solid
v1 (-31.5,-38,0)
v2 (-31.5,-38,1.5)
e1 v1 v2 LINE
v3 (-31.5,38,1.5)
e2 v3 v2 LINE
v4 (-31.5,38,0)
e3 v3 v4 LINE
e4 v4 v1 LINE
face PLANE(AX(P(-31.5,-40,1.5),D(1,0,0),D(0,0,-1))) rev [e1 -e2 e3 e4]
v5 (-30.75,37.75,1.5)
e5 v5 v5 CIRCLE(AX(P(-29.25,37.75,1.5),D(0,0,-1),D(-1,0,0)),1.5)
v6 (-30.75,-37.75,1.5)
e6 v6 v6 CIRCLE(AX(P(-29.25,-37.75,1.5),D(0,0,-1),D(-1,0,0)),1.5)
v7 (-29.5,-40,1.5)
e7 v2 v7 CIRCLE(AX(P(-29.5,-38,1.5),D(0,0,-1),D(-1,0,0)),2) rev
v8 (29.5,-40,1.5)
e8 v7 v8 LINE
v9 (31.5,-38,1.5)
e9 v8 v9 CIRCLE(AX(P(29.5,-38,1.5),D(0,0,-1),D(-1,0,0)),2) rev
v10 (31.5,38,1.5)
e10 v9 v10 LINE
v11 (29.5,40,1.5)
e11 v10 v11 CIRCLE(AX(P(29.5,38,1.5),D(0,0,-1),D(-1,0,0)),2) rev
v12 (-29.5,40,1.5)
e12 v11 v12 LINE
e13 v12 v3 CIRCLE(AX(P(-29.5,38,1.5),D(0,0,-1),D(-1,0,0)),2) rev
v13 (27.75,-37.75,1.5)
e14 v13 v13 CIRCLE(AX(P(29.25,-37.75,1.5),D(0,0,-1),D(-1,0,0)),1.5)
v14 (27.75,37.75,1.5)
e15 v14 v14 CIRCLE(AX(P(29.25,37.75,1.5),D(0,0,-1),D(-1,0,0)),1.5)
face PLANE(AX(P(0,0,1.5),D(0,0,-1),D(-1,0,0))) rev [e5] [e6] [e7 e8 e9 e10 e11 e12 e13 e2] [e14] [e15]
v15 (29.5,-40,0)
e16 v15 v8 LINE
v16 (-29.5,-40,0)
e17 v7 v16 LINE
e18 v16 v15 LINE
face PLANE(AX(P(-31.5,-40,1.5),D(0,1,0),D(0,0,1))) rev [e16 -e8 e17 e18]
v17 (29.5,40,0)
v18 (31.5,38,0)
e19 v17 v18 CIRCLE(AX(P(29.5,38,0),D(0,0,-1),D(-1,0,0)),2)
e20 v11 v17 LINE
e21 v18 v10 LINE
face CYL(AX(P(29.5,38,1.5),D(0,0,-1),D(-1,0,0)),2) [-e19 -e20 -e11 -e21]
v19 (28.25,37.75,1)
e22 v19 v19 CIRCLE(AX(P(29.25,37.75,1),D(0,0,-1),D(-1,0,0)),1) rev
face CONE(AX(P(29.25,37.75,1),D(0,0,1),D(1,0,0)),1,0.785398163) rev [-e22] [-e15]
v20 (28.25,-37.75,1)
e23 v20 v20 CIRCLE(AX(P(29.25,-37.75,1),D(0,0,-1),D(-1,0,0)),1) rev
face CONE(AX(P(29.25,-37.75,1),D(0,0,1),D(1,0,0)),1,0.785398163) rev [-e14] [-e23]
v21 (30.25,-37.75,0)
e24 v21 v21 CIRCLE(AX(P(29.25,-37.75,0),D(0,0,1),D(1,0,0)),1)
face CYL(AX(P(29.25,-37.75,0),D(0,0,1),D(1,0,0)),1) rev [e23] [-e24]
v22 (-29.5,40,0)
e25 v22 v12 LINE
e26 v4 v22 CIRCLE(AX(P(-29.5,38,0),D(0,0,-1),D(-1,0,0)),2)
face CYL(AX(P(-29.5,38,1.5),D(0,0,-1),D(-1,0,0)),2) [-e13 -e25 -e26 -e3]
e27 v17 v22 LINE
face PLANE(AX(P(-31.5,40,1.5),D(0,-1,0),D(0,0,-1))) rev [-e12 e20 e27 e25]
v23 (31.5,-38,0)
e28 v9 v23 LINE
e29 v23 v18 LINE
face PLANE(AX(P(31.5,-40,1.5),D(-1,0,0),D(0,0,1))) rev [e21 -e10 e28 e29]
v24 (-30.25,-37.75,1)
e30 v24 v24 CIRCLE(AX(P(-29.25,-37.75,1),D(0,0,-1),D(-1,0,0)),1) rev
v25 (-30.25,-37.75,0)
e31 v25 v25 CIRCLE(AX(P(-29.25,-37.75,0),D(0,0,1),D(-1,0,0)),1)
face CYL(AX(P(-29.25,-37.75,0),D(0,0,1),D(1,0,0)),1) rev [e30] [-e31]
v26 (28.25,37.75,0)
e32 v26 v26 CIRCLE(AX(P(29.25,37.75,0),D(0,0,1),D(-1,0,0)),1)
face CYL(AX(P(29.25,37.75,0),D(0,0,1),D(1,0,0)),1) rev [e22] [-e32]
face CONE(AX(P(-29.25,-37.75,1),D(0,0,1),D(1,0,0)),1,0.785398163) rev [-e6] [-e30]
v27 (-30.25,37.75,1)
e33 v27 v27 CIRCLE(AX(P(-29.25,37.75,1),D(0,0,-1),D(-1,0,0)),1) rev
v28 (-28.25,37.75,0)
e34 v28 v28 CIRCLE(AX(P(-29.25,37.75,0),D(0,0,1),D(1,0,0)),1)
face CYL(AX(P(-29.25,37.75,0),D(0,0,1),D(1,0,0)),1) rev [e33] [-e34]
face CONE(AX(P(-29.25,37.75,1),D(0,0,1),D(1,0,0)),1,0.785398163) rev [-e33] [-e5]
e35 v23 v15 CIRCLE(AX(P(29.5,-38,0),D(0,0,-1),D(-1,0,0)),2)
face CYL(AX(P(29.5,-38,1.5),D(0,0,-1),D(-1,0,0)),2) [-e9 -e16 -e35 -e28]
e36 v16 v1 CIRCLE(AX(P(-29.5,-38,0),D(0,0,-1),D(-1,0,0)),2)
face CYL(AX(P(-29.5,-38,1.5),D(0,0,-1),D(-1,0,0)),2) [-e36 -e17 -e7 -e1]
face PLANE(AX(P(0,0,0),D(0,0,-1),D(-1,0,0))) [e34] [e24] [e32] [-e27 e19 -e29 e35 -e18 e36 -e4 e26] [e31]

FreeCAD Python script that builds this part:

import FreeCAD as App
import Part
import Sketcher
from FreeCAD import Vector


def edges_at(feature, points):
    """Names of the edges that pass closest to the given points."""
    edges = feature.Shape.Edges
    near = lambda p: min(range(len(edges)), key=lambda i: edges[i].distToShape(Part.Vertex(*p))[0])
    return sorted({f"Edge{near(p) + 1}" for p in points})

doc = App.newDocument("Part")
body = doc.addObject("PartDesign::Body", "Body")

# Sketch on XY plane
sketch1 = body.newObject("Sketcher::SketchObject", "Sketch")
sketch1.AttachmentSupport = (doc.getObject("XY_Plane"), [""])
sketch1.MapMode = "FlatFace"
sketch1.addGeometry([
    Part.LineSegment(Vector(-32, 40, 0), Vector(-32, -40, 0)),
    Part.LineSegment(Vector(-32, -40, 0), Vector(32, -40, 0)),
    Part.LineSegment(Vector(32, -40, 0), Vector(32, 40, 0)),
    Part.LineSegment(Vector(32, 40, 0), Vector(-32, 40, 0)),
], False)
sketch1.addConstraint([
    Sketcher.Constraint("Coincident", 0, 2, 1, 1),
    Sketcher.Constraint("Coincident", 1, 2, 2, 1),
    Sketcher.Constraint("Coincident", 2, 2, 3, 1),
    Sketcher.Constraint("Coincident", 3, 2, 0, 1),
    Sketcher.Constraint("Vertical", 0),
    Sketcher.Constraint("Horizontal", 1),
    Sketcher.Constraint("Vertical", 2),
    Sketcher.Constraint("Horizontal", 3),
    Sketcher.Constraint("Symmetric", 0, 2, 2, 2, -1, 1),
    Sketcher.Constraint("DistanceX", 1, 1, 1, 2, 63.0),
    Sketcher.Constraint("DistanceY", 0, 2, 0, 1, 80.0),
])
pad1 = body.newObject("PartDesign::Pad", "Pad")
pad1.Profile = sketch1
pad1.Length = 1.5

# Sketch on XY plane
sketch2 = body.newObject("Sketcher::SketchObject", "Sketch001")
sketch2.AttachmentSupport = (doc.getObject("XY_Plane"), [""])
sketch2.MapMode = "FlatFace"
sketch2.AttachmentOffset = App.Placement(Vector(0, 0, 1.5), App.Rotation())
sketch2.addGeometry([
    Part.Circle(Vector(-29.2, 37.8, 0), Vector(0, 0, 1), 1),
    Part.Circle(Vector(29.2, 37.8, 0), Vector(0, 0, 1), 1),
    Part.Circle(Vector(29.2, -37.8, 0), Vector(0, 0, 1), 1),
    Part.Circle(Vector(-29.2, -37.8, 0), Vector(0, 0, 1), 1),
], False)
sketch2.addConstraint([
    Sketcher.Constraint("Equal", 0, 1),
    Sketcher.Constraint("Equal", 1, 2),
    Sketcher.Constraint("Equal", 2, 3),
    Sketcher.Constraint("Symmetric", 0, 3, 2, 3, -1, 1),
    Sketcher.Constraint("Symmetric", 1, 3, 3, 3, -1, 1),
    Sketcher.Constraint("Symmetric", 0, 3, 1, 3, -2),
    Sketcher.Constraint("Diameter", 0, 2.0),
    Sketcher.Constraint("DistanceX", 0, 3, 1, 3, 58.5),
    Sketcher.Constraint("DistanceY", 2, 3, 1, 3, 75.5),
])
pocket1 = body.newObject("PartDesign::Pocket", "Pocket")
pocket1.Profile = sketch2
pocket1.Length = 1.5
doc.recompute()

fillet = body.newObject("PartDesign::Fillet", "Fillet")
fillet.Base = (pocket1, edges_at(pocket1, [
    (31.5, -40, 0.75),
    (-31.5, -40, 0.75),
    (-31.5, 40, 0.75),
    (31.5, 40, 0.75),
]))
fillet.Radius = 2
doc.recompute()

chamfer = body.newObject("PartDesign::Chamfer", "Chamfer")
chamfer.Base = (fillet, edges_at(fillet, [
    (-28.25, -37.75, 1.5),
    (28.25, -37.75, 1.5),
    (30.25, 37.75, 1.5),
    (-30.25, 37.75, 1.5),
]))
chamfer.Size = 0.5

doc.recompute()
